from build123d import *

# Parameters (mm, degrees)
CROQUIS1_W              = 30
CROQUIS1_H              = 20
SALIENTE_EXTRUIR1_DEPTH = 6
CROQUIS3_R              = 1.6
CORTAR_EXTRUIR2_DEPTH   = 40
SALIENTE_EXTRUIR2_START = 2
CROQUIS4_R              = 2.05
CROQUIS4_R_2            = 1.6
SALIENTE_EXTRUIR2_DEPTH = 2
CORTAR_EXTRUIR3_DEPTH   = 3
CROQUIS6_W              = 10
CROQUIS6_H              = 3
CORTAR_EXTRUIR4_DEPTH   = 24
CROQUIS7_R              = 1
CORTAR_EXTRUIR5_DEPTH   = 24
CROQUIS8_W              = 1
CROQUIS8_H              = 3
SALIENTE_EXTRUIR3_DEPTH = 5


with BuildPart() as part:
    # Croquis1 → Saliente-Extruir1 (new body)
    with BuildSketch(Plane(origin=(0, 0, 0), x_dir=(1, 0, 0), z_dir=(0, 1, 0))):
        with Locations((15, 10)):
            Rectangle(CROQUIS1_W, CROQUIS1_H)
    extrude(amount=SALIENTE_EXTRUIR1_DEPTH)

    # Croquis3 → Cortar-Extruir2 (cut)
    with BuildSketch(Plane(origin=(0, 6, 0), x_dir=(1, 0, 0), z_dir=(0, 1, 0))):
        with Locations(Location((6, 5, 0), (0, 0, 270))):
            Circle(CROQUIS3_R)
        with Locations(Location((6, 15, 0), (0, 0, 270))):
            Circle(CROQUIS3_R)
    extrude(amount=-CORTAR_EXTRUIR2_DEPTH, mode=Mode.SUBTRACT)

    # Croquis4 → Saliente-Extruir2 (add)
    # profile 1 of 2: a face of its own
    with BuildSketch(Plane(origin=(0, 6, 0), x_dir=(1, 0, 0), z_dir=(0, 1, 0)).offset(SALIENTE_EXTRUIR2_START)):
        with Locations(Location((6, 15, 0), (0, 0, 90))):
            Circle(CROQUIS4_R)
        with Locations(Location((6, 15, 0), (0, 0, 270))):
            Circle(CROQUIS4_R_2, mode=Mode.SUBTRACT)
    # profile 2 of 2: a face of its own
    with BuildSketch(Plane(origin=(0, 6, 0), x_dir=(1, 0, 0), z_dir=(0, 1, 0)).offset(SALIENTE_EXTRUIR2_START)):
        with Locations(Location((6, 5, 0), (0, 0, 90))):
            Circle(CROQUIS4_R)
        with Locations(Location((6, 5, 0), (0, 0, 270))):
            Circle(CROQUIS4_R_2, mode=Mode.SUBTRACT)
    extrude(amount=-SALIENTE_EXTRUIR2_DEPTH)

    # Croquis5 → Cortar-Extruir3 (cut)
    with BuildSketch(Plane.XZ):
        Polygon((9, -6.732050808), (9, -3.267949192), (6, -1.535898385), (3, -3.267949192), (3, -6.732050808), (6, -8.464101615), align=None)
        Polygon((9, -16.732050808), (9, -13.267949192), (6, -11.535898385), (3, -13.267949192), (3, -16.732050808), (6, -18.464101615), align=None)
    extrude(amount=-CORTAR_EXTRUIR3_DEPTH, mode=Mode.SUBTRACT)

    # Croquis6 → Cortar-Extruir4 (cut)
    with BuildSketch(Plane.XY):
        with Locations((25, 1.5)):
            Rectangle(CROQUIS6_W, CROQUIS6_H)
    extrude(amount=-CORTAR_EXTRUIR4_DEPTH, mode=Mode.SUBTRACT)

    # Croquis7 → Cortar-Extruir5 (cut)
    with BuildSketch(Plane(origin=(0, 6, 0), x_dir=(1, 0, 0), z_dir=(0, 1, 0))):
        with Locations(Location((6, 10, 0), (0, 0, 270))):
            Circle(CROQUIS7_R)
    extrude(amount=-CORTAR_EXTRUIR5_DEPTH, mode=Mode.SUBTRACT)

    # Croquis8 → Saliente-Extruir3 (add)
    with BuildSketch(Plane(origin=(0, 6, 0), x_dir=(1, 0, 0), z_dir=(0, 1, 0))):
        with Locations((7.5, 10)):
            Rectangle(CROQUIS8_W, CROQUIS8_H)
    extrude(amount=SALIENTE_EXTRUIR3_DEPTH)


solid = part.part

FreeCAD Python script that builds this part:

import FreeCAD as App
import Part
import Sketcher
from FreeCAD import Vector
Q = App.Units.Quantity


def add_polygon(sketch, points):
    """Adds a closed chain of lines whose ends are joined by coincident constraints."""
    first, n = sketch.GeometryCount, len(points)
    for a, b in zip(points, points[1:] + points[:1]):
        sketch.addGeometry(Part.LineSegment(App.Vector(*a, 0), App.Vector(*b, 0)), False)
    for i in range(n):
        sketch.addConstraint(Sketcher.Constraint("Coincident", first + i, 2, first + (i + 1) % n, 1))

doc = App.newDocument("Part")
body = doc.addObject("PartDesign::Body", "Body")

# Sketch on XZ plane
sketch1 = body.newObject("Sketcher::SketchObject", "Sketch")
sketch1.AttachmentSupport = (doc.getObject("XZ_Plane"), [""])
sketch1.MapMode = "FlatFace"
add_polygon(sketch1, [(0, -20), (0, 0), (30, 0), (30, -20)])  # lines 0-3
sketch1.addConstraint(Sketcher.Constraint("Vertical", 0))
sketch1.addConstraint(Sketcher.Constraint("Horizontal", 1))
sketch1.addConstraint(Sketcher.Constraint("Vertical", 2))
sketch1.addConstraint(Sketcher.Constraint("Horizontal", 3))
sketch1.addConstraint(Sketcher.Constraint("Coincident", 0, 2, -1, 1))
sketch1.addConstraint(Sketcher.Constraint("DistanceX", 1, 1, 1, 2, 30.0))
sketch1.addConstraint(Sketcher.Constraint("DistanceY", 0, 1, 0, 2, 20.0))
pad1 = body.newObject("PartDesign::Pad", "Pad")
pad1.Profile = sketch1
pad1.Length = 6
pad1.Reversed = True

# Sketch on XZ plane
sketch2 = body.newObject("Sketcher::SketchObject", "Sketch001")
sketch2.AttachmentSupport = (doc.getObject("XZ_Plane"), [""])
sketch2.MapMode = "FlatFace"
sketch2.AttachmentOffset = App.Placement(Vector(0, 0, -6), App.Rotation())
sketch2.addGeometry(Part.Circle(Vector(6, -5, 0), Vector(0, 0, 1), 1.6), False)
sketch2.addGeometry(Part.Circle(Vector(6, -15, 0), Vector(0, 0, 1), 1.6), False)
sketch2.addConstraint(Sketcher.Constraint("Equal", 0, 1))
sketch2.addConstraint(Sketcher.Constraint("Vertical", 0, 3, 1, 3))
sketch2.addConstraint(Sketcher.Constraint("Diameter", 0, 3.2))
sketch2.addConstraint(Sketcher.Constraint("DistanceX", -1, 1, 0, 3, 6.0))
sketch2.addConstraint(Sketcher.Constraint("DistanceY", 0, 3, -1, 1, 5.0))
sketch2.addConstraint(Sketcher.Constraint("DistanceY", 1, 3, -1, 1, 15.0))
pocket1 = body.newObject("PartDesign::Pocket", "Pocket")
pocket1.Profile = sketch2
pocket1.Length = 40
pocket1.Reversed = True

# Sketch on XZ plane
sketch3 = body.newObject("Sketcher::SketchObject", "Sketch002")
sketch3.AttachmentSupport = (doc.getObject("XZ_Plane"), [""])
sketch3.MapMode = "FlatFace"
sketch3.AttachmentOffset = App.Placement(Vector(0, 0, -8), App.Rotation())
sketch3.addGeometry(Part.Circle(Vector(6, -15, 0), Vector(0, 0, 1), 2.05), False)
sketch3.addGeometry(Part.Circle(Vector(6, -15, 0), Vector(0, 0, 1), 1.6), False)
sketch3.addGeometry(Part.Circle(Vector(6, -5, 0), Vector(0, 0, 1), 2.05), False)
sketch3.addGeometry(Part.Circle(Vector(6, -5, 0), Vector(0, 0, 1), 1.6), False)
sketch3.addConstraint(Sketcher.Constraint("Coincident", 1, 3, 0, 3))
sketch3.addConstraint(Sketcher.Constraint("Coincident", 3, 3, 2, 3))
sketch3.addConstraint(Sketcher.Constraint("Equal", 0, 2))
sketch3.addConstraint(Sketcher.Constraint("Equal", 1, 3))
sketch3.addConstraint(Sketcher.Constraint("Vertical", 1, 3, 2, 3))
sketch3.addConstraint(Sketcher.Constraint("Diameter", 0, 4.1))
sketch3.addConstraint(Sketcher.Constraint("Diameter", 1, 3.2))
sketch3.addConstraint(Sketcher.Constraint("DistanceX", -1, 1, 0, 3, 6.0))
sketch3.addConstraint(Sketcher.Constraint("DistanceY", 0, 3, -1, 1, 15.0))
sketch3.addConstraint(Sketcher.Constraint("DistanceY", 2, 3, -1, 1, 5.0))
pad2 = body.newObject("PartDesign::Pad", "Pad001")
pad2.Profile = sketch3
pad2.Length = 2

# Sketch on XZ plane
sketch4 = body.newObject("Sketcher::SketchObject", "Sketch003")
sketch4.AttachmentSupport = (doc.getObject("XZ_Plane"), [""])
sketch4.MapMode = "FlatFace"
add_polygon(sketch4, [(9, -6.732051), (9, -3.267949), (6, -1.535898), (3, -3.267949), (3, -6.732051), (6, -8.464102)])  # lines 0-5
add_polygon(sketch4, [(9, -16.732051), (9, -13.267949), (6, -11.535898), (3, -13.267949), (3, -16.732051), (6, -18.464102)])  # lines 6-11
sketch4.addConstraint(Sketcher.Constraint("Vertical", 0))
sketch4.addConstraint(Sketcher.Constraint("Vertical", 3))
sketch4.addConstraint(Sketcher.Constraint("Vertical", 6))
sketch4.addConstraint(Sketcher.Constraint("Vertical", 9))
sketch4.addConstraint(Sketcher.Constraint("Parallel", 1, 4))
sketch4.addConstraint(Sketcher.Constraint("Parallel", 2, 5))
sketch4.addConstraint(Sketcher.Constraint("Parallel", 4, 7))
sketch4.addConstraint(Sketcher.Constraint("Parallel", 5, 8))
sketch4.addConstraint(Sketcher.Constraint("Parallel", 7, 10))
sketch4.addConstraint(Sketcher.Constraint("Parallel", 8, 11))
sketch4.addConstraint(Sketcher.Constraint("Horizontal", 0, 2, 2, 2))
sketch4.addConstraint(Sketcher.Constraint("Horizontal", 3, 2, 5, 2))
sketch4.addConstraint(Sketcher.Constraint("Horizontal", 6, 2, 8, 2))
sketch4.addConstraint(Sketcher.Constraint("Horizontal", 9, 2, 11, 2))
sketch4.addConstraint(Sketcher.Constraint("Vertical", 1, 2, 4, 2))
sketch4.addConstraint(Sketcher.Constraint("Vertical", 5, 2, 6, 2))
sketch4.addConstraint(Sketcher.Constraint("Vertical", 4, 2, 7, 2))
sketch4.addConstraint(Sketcher.Constraint("Equal", 3, 6))
sketch4.addConstraint(Sketcher.Constraint("Angle", 1, Q("150 deg")))
sketch4.addConstraint(Sketcher.Constraint("DistanceX", -1, 1, 0, 2, 9.0))
sketch4.addConstraint(Sketcher.Constraint("DistanceX", -1, 1, 1, 2, 6.0))
sketch4.addConstraint(Sketcher.Constraint("DistanceY", 6, 2, 0, 2, 10.0))
sketch4.addConstraint(Sketcher.Constraint("DistanceY", 0, 1, 0, 2, 3.464102))
sketch4.addConstraint(Sketcher.Constraint("DistanceY", 1, 2, -1, 1, 1.535898))
pocket2 = body.newObject("PartDesign::Pocket", "Pocket001")
pocket2.Profile = sketch4
pocket2.Length = 3

# Sketch on XY plane
sketch5 = body.newObject("Sketcher::SketchObject", "Sketch004")
sketch5.AttachmentSupport = (doc.getObject("XY_Plane"), [""])
sketch5.MapMode = "FlatFace"
add_polygon(sketch5, [(20, 3), (20, 0), (30, 0), (30, 3)])  # lines 0-3
sketch5.addConstraint(Sketcher.Constraint("Vertical", 0))
sketch5.addConstraint(Sketcher.Constraint("Horizontal", 1))
sketch5.addConstraint(Sketcher.Constraint("Vertical", 2))
sketch5.addConstraint(Sketcher.Constraint("Horizontal", 3))
sketch5.addConstraint(Sketcher.Constraint("PointOnObject", 0, 2, -1))
sketch5.addConstraint(Sketcher.Constraint("DistanceX", 1, 1, 1, 2, 10.0))
sketch5.addConstraint(Sketcher.Constraint("DistanceY", 0, 2, 0, 1, 3.0))
sketch5.addConstraint(Sketcher.Constraint("DistanceX", -1, 1, 0, 2, 20.0))
pocket3 = body.newObject("PartDesign::Pocket", "Pocket002")
pocket3.Profile = sketch5
pocket3.Length = 24

# Sketch on XZ plane
sketch6 = body.newObject("Sketcher::SketchObject", "Sketch005")
sketch6.AttachmentSupport = (doc.getObject("XZ_Plane"), [""])
sketch6.MapMode = "FlatFace"
sketch6.AttachmentOffset = App.Placement(Vector(0, 0, -6), App.Rotation())
sketch6.addGeometry(Part.Circle(Vector(6, -10, 0), Vector(0, 0, 1), 1), False)
sketch6.addConstraint(Sketcher.Constraint("Diameter", 0, 2.0))
sketch6.addConstraint(Sketcher.Constraint("DistanceX", -1, 1, 0, 3, 6.0))
sketch6.addConstraint(Sketcher.Constraint("DistanceY", 0, 3, -1, 1, 10.0))
pocket4 = body.newObject("PartDesign::Pocket", "Pocket003")
pocket4.Profile = sketch6
pocket4.Length = 24
pocket4.Reversed = True

# Sketch on XZ plane
sketch7 = body.newObject("Sketcher::SketchObject", "Sketch006")
sketch7.AttachmentSupport = (doc.getObject("XZ_Plane"), [""])
sketch7.MapMode = "FlatFace"
sketch7.AttachmentOffset = App.Placement(Vector(0, 0, -6), App.Rotation())
add_polygon(sketch7, [(7, -11.5), (7, -8.5), (8, -8.5), (8, -11.5)])  # lines 0-3
sketch7.addConstraint(Sketcher.Constraint("Vertical", 0))
sketch7.addConstraint(Sketcher.Constraint("Horizontal", 1))
sketch7.addConstraint(Sketcher.Constraint("Vertical", 2))
sketch7.addConstraint(Sketcher.Constraint("Horizontal", 3))
sketch7.addConstraint(Sketcher.Constraint("DistanceX", 1, 1, 1, 2, 1.0))
sketch7.addConstraint(Sketcher.Constraint("DistanceY", 0, 1, 0, 2, 3.0))
sketch7.addConstraint(Sketcher.Constraint("DistanceX", -1, 1, 0, 2, 7.0))
sketch7.addConstraint(Sketcher.Constraint("DistanceY", 0, 2, -1, 1, 8.5))
pad3 = body.newObject("PartDesign::Pad", "Pad002")
pad3.Profile = sketch7
pad3.Length = 5
pad3.Reversed = True

doc.recompute()
